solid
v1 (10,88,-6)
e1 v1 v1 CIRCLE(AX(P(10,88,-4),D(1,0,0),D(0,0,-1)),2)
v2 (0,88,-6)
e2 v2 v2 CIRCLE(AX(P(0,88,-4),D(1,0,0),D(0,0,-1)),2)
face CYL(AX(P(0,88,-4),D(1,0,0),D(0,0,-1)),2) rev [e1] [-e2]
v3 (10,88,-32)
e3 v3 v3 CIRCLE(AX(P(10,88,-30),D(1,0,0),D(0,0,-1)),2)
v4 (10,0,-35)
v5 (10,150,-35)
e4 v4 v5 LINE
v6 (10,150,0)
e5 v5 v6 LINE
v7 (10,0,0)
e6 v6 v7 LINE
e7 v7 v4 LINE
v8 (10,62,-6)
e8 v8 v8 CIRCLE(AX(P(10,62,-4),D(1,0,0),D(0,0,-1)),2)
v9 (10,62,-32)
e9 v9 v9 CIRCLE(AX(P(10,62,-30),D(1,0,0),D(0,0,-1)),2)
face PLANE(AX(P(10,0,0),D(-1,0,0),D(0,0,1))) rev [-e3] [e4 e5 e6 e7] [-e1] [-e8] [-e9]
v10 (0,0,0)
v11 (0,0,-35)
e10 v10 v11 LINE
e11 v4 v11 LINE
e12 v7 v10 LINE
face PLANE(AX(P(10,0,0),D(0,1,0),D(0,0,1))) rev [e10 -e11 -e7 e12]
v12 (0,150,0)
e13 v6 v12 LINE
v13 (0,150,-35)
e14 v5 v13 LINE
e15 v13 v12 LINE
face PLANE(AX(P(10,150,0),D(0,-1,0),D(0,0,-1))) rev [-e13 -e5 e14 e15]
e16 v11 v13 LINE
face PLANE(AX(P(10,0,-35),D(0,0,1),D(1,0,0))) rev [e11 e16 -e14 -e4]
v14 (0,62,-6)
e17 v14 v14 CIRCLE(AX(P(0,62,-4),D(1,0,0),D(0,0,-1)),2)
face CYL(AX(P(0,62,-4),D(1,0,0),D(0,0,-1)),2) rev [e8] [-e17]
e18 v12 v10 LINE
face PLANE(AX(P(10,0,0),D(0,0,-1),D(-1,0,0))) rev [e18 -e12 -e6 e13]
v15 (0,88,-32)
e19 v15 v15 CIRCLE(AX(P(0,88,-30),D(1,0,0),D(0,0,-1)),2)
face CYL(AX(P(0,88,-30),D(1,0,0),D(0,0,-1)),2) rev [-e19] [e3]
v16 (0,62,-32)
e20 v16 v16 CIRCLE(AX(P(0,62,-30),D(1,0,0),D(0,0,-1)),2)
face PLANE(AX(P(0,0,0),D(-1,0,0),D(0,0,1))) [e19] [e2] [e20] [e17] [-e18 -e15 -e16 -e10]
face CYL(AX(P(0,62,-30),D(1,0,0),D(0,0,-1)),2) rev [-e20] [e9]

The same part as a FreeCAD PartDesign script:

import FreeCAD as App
import Part
import Sketcher

V = App.Vector


def add_polygon(sketch, points):
    """Adds a closed chain of lines whose ends are joined by coincident constraints."""
    first, n = sketch.GeometryCount, len(points)
    for a, b in zip(points, points[1:] + points[:1]):
        sketch.addGeometry(Part.LineSegment(App.Vector(*a, 0), App.Vector(*b, 0)), False)
    for i in range(n):
        sketch.addConstraint(Sketcher.Constraint("Coincident", first + i, 2, first + (i + 1) % n, 1))

doc = App.newDocument("Part")
body = doc.addObject("PartDesign::Body", "Body")

# Sketch on YZ plane
sketch1 = body.newObject("Sketcher::SketchObject", "Sketch")
sketch1.AttachmentSupport = (doc.getObject("YZ_Plane"), [""])
sketch1.MapMode = "FlatFace"
add_polygon(sketch1, [(150, 0), (0, 0), (0, -35), (150, -35)])  # lines 0-3
sketch1.addConstraint([
    Sketcher.Constraint("Horizontal", 0),
    Sketcher.Constraint("Vertical", 1),
    Sketcher.Constraint("Horizontal", 2),
    Sketcher.Constraint("Vertical", 3),
    Sketcher.Constraint("Coincident", 0, 2, -1, 1),
    Sketcher.Constraint("DistanceX", 0, 2, 0, 1, 150.0),
    Sketcher.Constraint("DistanceY", 1, 2, 1, 1, 35.0),
])
pad1 = body.newObject("PartDesign::Pad", "Pad")
pad1.Profile = sketch1
pad1.Length = 10

# Sketch on YZ plane
sketch2 = body.newObject("Sketcher::SketchObject", "Sketch001")
sketch2.AttachmentSupport = (doc.getObject("YZ_Plane"), [""])
sketch2.MapMode = "FlatFace"
sketch2.AttachmentOffset = App.Placement(V(0, 0, 10), App.Rotation())
sketch2.addGeometry([
    Part.Circle(V(88, -4, 0), V(0, 0, 1), 2),
    Part.Circle(V(88, -30, 0), V(0, 0, 1), 2),
    Part.Circle(V(62, -30, 0), V(0, 0, 1), 2),
    Part.Circle(V(62, -4, 0), V(0, 0, 1), 2),
], False)
sketch2.addConstraint([
    Sketcher.Constraint("Equal", 0, 1),
    Sketcher.Constraint("Equal", 1, 2),
    Sketcher.Constraint("Equal", 2, 3),
    Sketcher.Constraint("Horizontal", 1, 3, 2, 3),
    Sketcher.Constraint("Horizontal", 0, 3, 3, 3),
    Sketcher.Constraint("Vertical", 0, 3, 1, 3),
    Sketcher.Constraint("Vertical", 2, 3, 3, 3),
    Sketcher.Constraint("Diameter", 0, 4.0),
    Sketcher.Constraint("DistanceX", -1, 1, 0, 3, 88.0),
    Sketcher.Constraint("DistanceY", 0, 3, -1, 1, 4.0),
    Sketcher.Constraint("DistanceY", 1, 3, -1, 1, 30.0),
    Sketcher.Constraint("DistanceX", -1, 1, 2, 3, 62.0),
])
pocket1 = body.newObject("PartDesign::Pocket", "Pocket")
pocket1.Profile = sketch2
pocket1.Length = 10

doc.recompute()
